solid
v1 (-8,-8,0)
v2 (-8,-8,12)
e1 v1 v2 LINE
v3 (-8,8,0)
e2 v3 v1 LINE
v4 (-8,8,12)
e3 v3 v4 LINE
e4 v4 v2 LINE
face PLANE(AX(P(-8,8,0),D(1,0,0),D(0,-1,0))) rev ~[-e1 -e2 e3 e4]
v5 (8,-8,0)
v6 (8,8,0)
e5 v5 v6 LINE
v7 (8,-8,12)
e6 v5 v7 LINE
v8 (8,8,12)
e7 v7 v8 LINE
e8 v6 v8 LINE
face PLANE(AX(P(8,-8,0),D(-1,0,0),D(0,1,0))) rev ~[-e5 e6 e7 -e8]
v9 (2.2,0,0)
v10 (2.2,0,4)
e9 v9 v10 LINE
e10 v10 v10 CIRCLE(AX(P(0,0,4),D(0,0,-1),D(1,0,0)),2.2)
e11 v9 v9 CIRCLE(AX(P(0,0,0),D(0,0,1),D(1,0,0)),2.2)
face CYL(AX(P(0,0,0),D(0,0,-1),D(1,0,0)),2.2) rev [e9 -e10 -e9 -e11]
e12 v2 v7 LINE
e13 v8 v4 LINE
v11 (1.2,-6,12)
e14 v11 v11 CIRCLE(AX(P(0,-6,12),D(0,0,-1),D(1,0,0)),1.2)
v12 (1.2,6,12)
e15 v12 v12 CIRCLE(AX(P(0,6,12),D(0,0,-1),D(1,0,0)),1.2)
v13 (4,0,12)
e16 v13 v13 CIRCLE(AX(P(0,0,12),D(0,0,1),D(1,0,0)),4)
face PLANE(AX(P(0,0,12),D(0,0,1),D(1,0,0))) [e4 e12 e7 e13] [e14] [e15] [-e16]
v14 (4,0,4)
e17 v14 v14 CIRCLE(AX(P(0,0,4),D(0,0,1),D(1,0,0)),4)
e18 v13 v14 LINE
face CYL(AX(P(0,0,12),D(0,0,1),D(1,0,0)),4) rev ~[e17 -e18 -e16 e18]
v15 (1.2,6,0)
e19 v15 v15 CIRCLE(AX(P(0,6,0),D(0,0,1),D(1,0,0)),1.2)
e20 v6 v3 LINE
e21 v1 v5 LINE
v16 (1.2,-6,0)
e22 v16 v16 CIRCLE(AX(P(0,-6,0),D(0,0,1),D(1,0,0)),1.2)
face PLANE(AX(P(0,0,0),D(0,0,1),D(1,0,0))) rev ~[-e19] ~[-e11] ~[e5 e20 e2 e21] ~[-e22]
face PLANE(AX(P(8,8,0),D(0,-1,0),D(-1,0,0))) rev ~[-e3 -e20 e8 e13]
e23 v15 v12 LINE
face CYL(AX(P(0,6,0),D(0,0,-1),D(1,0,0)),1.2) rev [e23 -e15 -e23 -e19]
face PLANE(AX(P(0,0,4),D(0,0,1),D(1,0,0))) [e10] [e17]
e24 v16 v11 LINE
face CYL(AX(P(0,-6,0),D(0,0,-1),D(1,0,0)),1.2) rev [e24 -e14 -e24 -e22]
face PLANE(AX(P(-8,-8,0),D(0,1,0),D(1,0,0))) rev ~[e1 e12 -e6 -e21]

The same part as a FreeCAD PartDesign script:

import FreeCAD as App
import Part
import Sketcher

V = App.Vector


def add_polygon(sketch, points):
    """Adds a closed chain of lines whose ends are joined by coincident constraints."""
    first, n = sketch.GeometryCount, len(points)
    for a, b in zip(points, points[1:] + points[:1]):
        sketch.addGeometry(Part.LineSegment(App.Vector(*a, 0), App.Vector(*b, 0)), False)
    for i in range(n):
        sketch.addConstraint(Sketcher.Constraint("Coincident", first + i, 2, first + (i + 1) % n, 1))

doc = App.newDocument("Part")
body = doc.addObject("PartDesign::Body", "Body")

sketch1 = body.newObject("Sketcher::SketchObject", "Sketch")
sketch1.AttachmentSupport = (doc.getObject("XY_Plane"), [""])
sketch1.MapMode = "FlatFace"
add_polygon(sketch1, [(-8, 8), (-8, -8), (8, -8), (8, 8)])
sketch1.addConstraint([
    Sketcher.Constraint("Vertical", 0),
    Sketcher.Constraint("Horizontal", 1),
    Sketcher.Constraint("Vertical", 2),
    Sketcher.Constraint("Horizontal", 3),
    Sketcher.Constraint("Symmetric", 0, 2, 2, 2, -1, 1),
    Sketcher.Constraint("Equal", 3, 0),
    Sketcher.Constraint("DistanceX", 1, 1, 1, 2, 16.0),
])
pad1 = body.newObject("PartDesign::Pad", "Pad")
pad1.Profile = sketch1
pad1.Length = 12

sketch2 = body.newObject("Sketcher::SketchObject", "Sketch001")
sketch2.AttachmentSupport = (doc.getObject("XY_Plane"), [""])
sketch2.MapMode = "FlatFace"
sketch2.addGeometry(Part.Circle(V(0, 0, 0), V(0, 0, 1), 2.2), False)
sketch2.addConstraint([
    Sketcher.Constraint("Coincident", 0, 3, -1, 1),
    Sketcher.Constraint("Diameter", 0, 4.4),
])
pocket1 = body.newObject("PartDesign::Pocket", "Pocket")
pocket1.Profile = sketch2
pocket1.Length = 12.2
pocket1.Reversed = True

sketch3 = body.newObject("Sketcher::SketchObject", "Sketch002")
sketch3.AttachmentSupport = (doc.getObject("XY_Plane"), [""])
sketch3.MapMode = "FlatFace"
sketch3.addGeometry(Part.Circle(V(0, 6, 0), V(0, 0, 1), 1.2), False)
sketch3.addConstraint([
    Sketcher.Constraint("PointOnObject", 0, 3, -2),
    Sketcher.Constraint("Diameter", 0, 2.4),
    Sketcher.Constraint("DistanceY", -1, 1, 0, 3, 6.0),
])
pocket2 = body.newObject("PartDesign::Pocket", "Pocket001")
pocket2.Profile = sketch3
pocket2.Length = 12.2
pocket2.Reversed = True

sketch4 = body.newObject("Sketcher::SketchObject", "Sketch003")
sketch4.AttachmentSupport = (doc.getObject("XY_Plane"), [""])
sketch4.MapMode = "FlatFace"
sketch4.addGeometry(Part.Circle(V(0, -6, 0), V(0, 0, 1), 1.2), False)
sketch4.addConstraint([
    Sketcher.Constraint("PointOnObject", 0, 3, -2),
    Sketcher.Constraint("Diameter", 0, 2.4),
    Sketcher.Constraint("DistanceY", 0, 3, -1, 1, 6.0),
])
pocket3 = body.newObject("PartDesign::Pocket", "Pocket002")
pocket3.Profile = sketch4
pocket3.Length = 12.2
pocket3.Reversed = True

sketch5 = body.newObject("Sketcher::SketchObject", "Sketch004")
sketch5.AttachmentSupport = (doc.getObject("XY_Plane"), [""])
sketch5.MapMode = "FlatFace"
sketch5.AttachmentOffset = App.Placement(V(0, 0, 12), App.Rotation())
sketch5.addGeometry(Part.Circle(V(0, 0, 0), V(0, 0, 1), 4), False)
sketch5.addConstraint([
    Sketcher.Constraint("Coincident", 0, 3, -1, 1),
    Sketcher.Constraint("Diameter", 0, 8.0),
])
pocket4 = body.newObject("PartDesign::Pocket", "Pocket003")
pocket4.Profile = sketch5
pocket4.Length = 8

doc.recompute()
